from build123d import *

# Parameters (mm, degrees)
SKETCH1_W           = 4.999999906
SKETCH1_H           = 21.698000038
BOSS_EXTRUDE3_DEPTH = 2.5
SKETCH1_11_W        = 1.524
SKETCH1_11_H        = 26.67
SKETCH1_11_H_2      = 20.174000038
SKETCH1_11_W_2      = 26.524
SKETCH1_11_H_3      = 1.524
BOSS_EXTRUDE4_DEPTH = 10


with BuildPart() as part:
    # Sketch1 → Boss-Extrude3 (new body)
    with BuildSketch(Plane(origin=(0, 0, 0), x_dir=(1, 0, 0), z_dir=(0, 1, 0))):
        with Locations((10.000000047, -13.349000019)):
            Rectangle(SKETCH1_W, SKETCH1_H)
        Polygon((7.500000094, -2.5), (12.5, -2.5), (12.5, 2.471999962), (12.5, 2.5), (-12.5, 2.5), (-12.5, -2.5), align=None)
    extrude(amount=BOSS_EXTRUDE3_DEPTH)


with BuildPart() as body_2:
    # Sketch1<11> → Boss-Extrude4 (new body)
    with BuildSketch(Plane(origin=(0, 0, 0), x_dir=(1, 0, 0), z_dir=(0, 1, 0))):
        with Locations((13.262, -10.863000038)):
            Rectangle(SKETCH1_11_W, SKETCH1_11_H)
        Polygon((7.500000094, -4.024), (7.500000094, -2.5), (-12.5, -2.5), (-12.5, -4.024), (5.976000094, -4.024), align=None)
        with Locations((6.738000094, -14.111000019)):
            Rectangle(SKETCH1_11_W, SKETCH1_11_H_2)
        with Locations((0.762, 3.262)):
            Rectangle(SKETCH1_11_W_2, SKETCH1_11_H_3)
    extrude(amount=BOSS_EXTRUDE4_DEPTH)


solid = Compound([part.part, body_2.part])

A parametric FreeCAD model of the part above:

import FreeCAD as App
import Part
import Sketcher
from FreeCAD import Vector
Q = App.Units.Quantity

doc = App.newDocument("Part")
body = doc.addObject("PartDesign::Body", "Body")

# Sketch on XZ plane
sketch1 = body.newObject("Sketcher::SketchObject", "Sketch")
sketch1.AttachmentSupport = (doc.getObject("XZ_Plane"), [""])
sketch1.MapMode = "FlatFace"
sketch1.addGeometry(Part.LineSegment(Vector(7.5, 2.5, 0), Vector(7.5, 24.198, 0)), False)
sketch1.addGeometry(Part.LineSegment(Vector(7.5, 24.198, 0), Vector(12.5, 24.198, 0)), False)
sketch1.addGeometry(Part.LineSegment(Vector(12.5, 24.198, 0), Vector(12.5, -2.5, 0)), False)
sketch1.addGeometry(Part.LineSegment(Vector(12.5, -2.5, 0), Vector(-12.5, -2.5, 0)), False)
sketch1.addGeometry(Part.LineSegment(Vector(-12.5, -2.5, 0), Vector(-12.5, 2.5, 0)), False)
sketch1.addGeometry(Part.LineSegment(Vector(-12.5, 2.5, 0), Vector(7.5, 2.5, 0)), False)
sketch1.addConstraint(Sketcher.Constraint("Coincident", 0, 2, 1, 1))
sketch1.addConstraint(Sketcher.Constraint("Coincident", 1, 2, 2, 1))
sketch1.addConstraint(Sketcher.Constraint("Coincident", 2, 2, 3, 1))
sketch1.addConstraint(Sketcher.Constraint("Coincident", 3, 2, 4, 1))
sketch1.addConstraint(Sketcher.Constraint("Coincident", 4, 2, 5, 1))
sketch1.addConstraint(Sketcher.Constraint("Coincident", 5, 2, 0, 1))
sketch1.addConstraint(Sketcher.Constraint("Vertical", 0))
sketch1.addConstraint(Sketcher.Constraint("Horizontal", 1))
sketch1.addConstraint(Sketcher.Constraint("Vertical", 2))
sketch1.addConstraint(Sketcher.Constraint("Horizontal", 3))
sketch1.addConstraint(Sketcher.Constraint("Vertical", 4))
sketch1.addConstraint(Sketcher.Constraint("Horizontal", 5))
sketch1.addConstraint(Sketcher.Constraint("Symmetric", 2, 2, 4, 2, -1, 1))
sketch1.addConstraint(Sketcher.Constraint("Equal", 1, 4))
sketch1.addConstraint(Sketcher.Constraint("DistanceX", 1, 1, 1, 2, Q("5 mm")))
sketch1.addConstraint(Sketcher.Constraint("DistanceX", 3, 2, 3, 1, Q("25 mm")))
sketch1.addConstraint(Sketcher.Constraint("DistanceY", 0, 1, 0, 2, Q("21.698 mm")))
pad1 = body.newObject("PartDesign::Pad", "Pad")
pad1.Profile = sketch1
pad1.Length = 2.5
pad1.Reversed = True
body2 = doc.addObject("PartDesign::Body", "Body001")
body2.AllowCompound = True

# Sketch on XZ plane
sketch2 = body2.newObject("Sketcher::SketchObject", "Sketch001")
sketch2.AttachmentSupport = (doc.getObject("XZ_Plane001"), [""])
sketch2.MapMode = "FlatFace"
sketch2.addGeometry(Part.LineSegment(Vector(12.5, -2.472, 0), Vector(12.5, 24.198, 0)), False)
sketch2.addGeometry(Part.LineSegment(Vector(12.5, 24.198, 0), Vector(14.024, 24.198, 0)), False)
sketch2.addGeometry(Part.LineSegment(Vector(14.024, 24.198, 0), Vector(14.024, -2.472, 0)), False)
sketch2.addGeometry(Part.LineSegment(Vector(14.024, -2.472, 0), Vector(12.5, -2.472, 0)), False)
sketch2.addGeometry(Part.LineSegment(Vector(7.5, 2.5, 0), Vector(-12.5, 2.5, 0)), False)
sketch2.addGeometry(Part.LineSegment(Vector(-12.5, 2.5, 0), Vector(-12.5, 4.024, 0)), False)
sketch2.addGeometry(Part.LineSegment(Vector(-12.5, 4.024, 0), Vector(5.976, 4.024, 0)), False)
sketch2.addGeometry(Part.LineSegment(Vector(5.976, 4.024, 0), Vector(5.976, 24.198, 0)), False)
sketch2.addGeometry(Part.LineSegment(Vector(5.976, 24.198, 0), Vector(7.5, 24.198, 0)), False)
sketch2.addGeometry(Part.LineSegment(Vector(7.5, 24.198, 0), Vector(7.5, 2.5, 0)), False)
sketch2.addGeometry(Part.LineSegment(Vector(-12.5, -4.024, 0), Vector(-12.5, -2.5, 0)), False)
sketch2.addGeometry(Part.LineSegment(Vector(-12.5, -2.5, 0), Vector(14.024, -2.5, 0)), False)
sketch2.addGeometry(Part.LineSegment(Vector(14.024, -2.5, 0), Vector(14.024, -4.024, 0)), False)
sketch2.addGeometry(Part.LineSegment(Vector(14.024, -4.024, 0), Vector(-12.5, -4.024, 0)), False)
sketch2.addConstraint(Sketcher.Constraint("Coincident", 0, 2, 1, 1))
sketch2.addConstraint(Sketcher.Constraint("Coincident", 1, 2, 2, 1))
sketch2.addConstraint(Sketcher.Constraint("Coincident", 2, 2, 3, 1))
sketch2.addConstraint(Sketcher.Constraint("Coincident", 3, 2, 0, 1))
sketch2.addConstraint(Sketcher.Constraint("Coincident", 4, 2, 5, 1))
sketch2.addConstraint(Sketcher.Constraint("Coincident", 5, 2, 6, 1))
sketch2.addConstraint(Sketcher.Constraint("Coincident", 6, 2, 7, 1))
sketch2.addConstraint(Sketcher.Constraint("Coincident", 7, 2, 8, 1))
sketch2.addConstraint(Sketcher.Constraint("Coincident", 8, 2, 9, 1))
sketch2.addConstraint(Sketcher.Constraint("Coincident", 9, 2, 4, 1))
sketch2.addConstraint(Sketcher.Constraint("Coincident", 10, 2, 11, 1))
sketch2.addConstraint(Sketcher.Constraint("Coincident", 11, 2, 12, 1))
sketch2.addConstraint(Sketcher.Constraint("Coincident", 12, 2, 13, 1))
sketch2.addConstraint(Sketcher.Constraint("Coincident", 13, 2, 10, 1))
sketch2.addConstraint(Sketcher.Constraint("Vertical", 0))
sketch2.addConstraint(Sketcher.Constraint("Horizontal", 1))
sketch2.addConstraint(Sketcher.Constraint("Vertical", 2))
sketch2.addConstraint(Sketcher.Constraint("Horizontal", 3))
sketch2.addConstraint(Sketcher.Constraint("Horizontal", 4))
sketch2.addConstraint(Sketcher.Constraint("Vertical", 5))
sketch2.addConstraint(Sketcher.Constraint("Horizontal", 6))
sketch2.addConstraint(Sketcher.Constraint("Vertical", 7))
sketch2.addConstraint(Sketcher.Constraint("Horizontal", 8))
sketch2.addConstraint(Sketcher.Constraint("Vertical", 9))
sketch2.addConstraint(Sketcher.Constraint("Vertical", 10))
sketch2.addConstraint(Sketcher.Constraint("Horizontal", 11))
sketch2.addConstraint(Sketcher.Constraint("Vertical", 12))
sketch2.addConstraint(Sketcher.Constraint("Horizontal", 13))
sketch2.addConstraint(Sketcher.Constraint("Symmetric", 4, 2, 10, 2, -1))
sketch2.addConstraint(Sketcher.Constraint("Horizontal", 1, 2, 7, 2))
sketch2.addConstraint(Sketcher.Constraint("Vertical", 2, 2, 11, 2))
sketch2.addConstraint(Sketcher.Constraint("Equal", 3, 8))
sketch2.addConstraint(Sketcher.Constraint("Equal", 8, 5))
sketch2.addConstraint(Sketcher.Constraint("Equal", 5, 10))
sketch2.addConstraint(Sketcher.Constraint("DistanceX", 4, 2, 4, 1, Q("20 mm")))
sketch2.addConstraint(Sketcher.Constraint("DistanceX", 4, 2, 3, 2, Q("25 mm")))
sketch2.addConstraint(Sketcher.Constraint("DistanceY", 10, 2, 4, 2, Q("5 mm")))
sketch2.addConstraint(Sketcher.Constraint("DistanceY", 0, 1, 0, 2, Q("26.67 mm")))
sketch2.addConstraint(Sketcher.Constraint("DistanceX", -1, 1, 0, 2, Q("12.5 mm")))
sketch2.addConstraint(Sketcher.Constraint("DistanceX", 1, 1, 1, 2, Q("1.524 mm")))
sketch2.addConstraint(Sketcher.Constraint("DistanceY", 7, 1, 7, 2, Q("20.174 mm")))
pad2 = body2.newObject("PartDesign::Pad", "Pad001")
pad2.Profile = sketch2
pad2.Length = 10
pad2.Reversed = True

doc.recompute()
